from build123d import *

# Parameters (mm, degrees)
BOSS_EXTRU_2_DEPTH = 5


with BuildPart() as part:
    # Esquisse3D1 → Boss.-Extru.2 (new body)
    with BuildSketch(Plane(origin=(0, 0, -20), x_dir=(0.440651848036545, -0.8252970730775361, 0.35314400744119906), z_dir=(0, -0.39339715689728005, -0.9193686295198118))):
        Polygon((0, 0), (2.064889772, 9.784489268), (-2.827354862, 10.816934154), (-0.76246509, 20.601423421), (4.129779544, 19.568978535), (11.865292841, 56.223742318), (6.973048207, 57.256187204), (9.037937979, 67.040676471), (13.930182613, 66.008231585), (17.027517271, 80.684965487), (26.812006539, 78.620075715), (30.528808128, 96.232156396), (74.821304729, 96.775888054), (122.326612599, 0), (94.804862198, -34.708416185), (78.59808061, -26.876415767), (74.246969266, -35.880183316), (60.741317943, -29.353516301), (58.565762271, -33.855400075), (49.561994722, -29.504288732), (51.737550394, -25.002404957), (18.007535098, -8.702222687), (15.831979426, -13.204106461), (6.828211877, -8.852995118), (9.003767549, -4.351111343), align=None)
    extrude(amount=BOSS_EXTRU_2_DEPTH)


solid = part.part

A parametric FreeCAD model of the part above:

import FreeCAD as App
import Part
import Sketcher
from FreeCAD import Vector


def add_polygon(sketch, points):
    """Adds a closed chain of lines whose ends are joined by coincident constraints."""
    first, n = sketch.GeometryCount, len(points)
    for a, b in zip(points, points[1:] + points[:1]):
        sketch.addGeometry(Part.LineSegment(App.Vector(*a, 0), App.Vector(*b, 0)), False)
    for i in range(n):
        sketch.addConstraint(Sketcher.Constraint("Coincident", first + i, 2, first + (i + 1) % n, 1))

doc = App.newDocument("Part")
params = doc.addObject("Spreadsheet::Sheet", "Params")
for row, (alias, value) in enumerate([
    ("sketch1_length", "10 mm"),
    ("sketch1_length2", "5 mm"),
    ("sketch1_length3", "15 mm"),
    ("sketch1_length4", "18 mm"),
    ("pad1_length", "5 mm"),
], start=1):
    params.set(f"A{row}", alias)
    params.set(f"B{row}", "=" + value)
    params.setAlias(f"B{row}", alias)

body = doc.addObject("PartDesign::Body", "Body")

# Sketch on an angled plane
sketch1 = body.newObject("Sketcher::SketchObject", "Sketch")
sketch1.Placement = App.Placement(Vector(0, 0, -20), App.Rotation(Vector(0.440651848, -0.825297073, 0.353144007), Vector(-0.897678088, -0.405121486, 0.173351184), Vector(0, -0.393397157, -0.91936863), "ZXY"))
add_polygon(sketch1, [(2.1, 9.8), (0, 0), (9, -4.4), (6.8, -8.9), (15.8, -13.2), (18, -8.7), (51.7, -25), (49.6, -29.5), (58.6, -33.9), (60.7, -29.4), (74.2, -35.9), (78.6, -26.9), (94.8, -34.7), (122.3, 0), (74.8, 96.8), (30.5, 96.2), (26.8, 78.6), (17, 80.7), (13.9, 66), (9, 67), (7, 57.3), (11.9, 56.2), (4.1, 19.6), (-0.8, 20.6), (-2.8, 10.8)])  # lines 0-24
sketch1.addConstraint([
    Sketcher.Constraint("Coincident", 0, 2, -1, 1),
    Sketcher.Constraint("PointOnObject", 12, 2, -1),
    Sketcher.Constraint("Perpendicular", 1, 2),
    Sketcher.Constraint("Perpendicular", 2, 3),
    Sketcher.Constraint("Perpendicular", 3, 4),
    Sketcher.Constraint("Perpendicular", 4, 5),
    Sketcher.Constraint("Perpendicular", 5, 6),
    Sketcher.Constraint("Perpendicular", 6, 7),
    Sketcher.Constraint("Perpendicular", 7, 8),
    Sketcher.Constraint("Perpendicular", 8, 9),
    Sketcher.Constraint("Perpendicular", 9, 10),
    Sketcher.Constraint("Perpendicular", 10, 11),
    Sketcher.Constraint("Parallel", 0, 15),
    Sketcher.Constraint("Perpendicular", 15, 16),
    Sketcher.Constraint("Perpendicular", 16, 17),
    Sketcher.Constraint("Perpendicular", 17, 18),
    Sketcher.Constraint("Perpendicular", 18, 19),
    Sketcher.Constraint("Perpendicular", 19, 20),
    Sketcher.Constraint("Perpendicular", 20, 21),
    Sketcher.Constraint("Perpendicular", 21, 22),
    Sketcher.Constraint("Perpendicular", 22, 23),
    Sketcher.Constraint("Perpendicular", 23, 24),
    Sketcher.Constraint("Equal", 0, 1),
    Sketcher.Constraint("Equal", 1, 3),
    Sketcher.Constraint("Equal", 2, 4),
    Sketcher.Constraint("Equal", 4, 6),
    Sketcher.Constraint("Equal", 3, 7),
    Sketcher.Constraint("Equal", 6, 8),
    Sketcher.Constraint("Equal", 7, 10),
    Sketcher.Constraint("Equal", 12, 14),
    Sketcher.Constraint("Equal", 11, 15),
    Sketcher.Constraint("Equal", 10, 16),
    Sketcher.Constraint("Equal", 9, 17),
    Sketcher.Constraint("Equal", 8, 18),
    Sketcher.Constraint("Equal", 16, 19),
    Sketcher.Constraint("Equal", 18, 20),
    Sketcher.Constraint("Equal", 5, 21),
    Sketcher.Constraint("Equal", 20, 22),
    Sketcher.Constraint("Equal", 19, 23),
    Sketcher.Constraint("Equal", 22, 24),
    Sketcher.Constraint("Distance", 0, 10.0),
    Sketcher.Constraint("Distance", 2, 5.0),
    Sketcher.Constraint("Distance", 9, 15.0),
    Sketcher.Constraint("Distance", 11, 18.0),
    Sketcher.Constraint("DistanceX", 22, 2, 4, 2, 18.77),
    Sketcher.Constraint("DistanceY", 11, 2, 10, 2, 7.832),
    Sketcher.Constraint("DistanceY", 1, 2, 13, 2, 101.126999),
    Sketcher.Constraint("DistanceY", 7, 2, -1, 1, 33.8554),
    Sketcher.Constraint("DistanceX", 15, 2, 13, 2, 48.009298),
])
sketch1.setExpression("Constraints[65]", "Params.sketch1_length")
sketch1.setExpression("Constraints[66]", "Params.sketch1_length2")
sketch1.setExpression("Constraints[67]", "Params.sketch1_length3")
sketch1.setExpression("Constraints[68]", "Params.sketch1_length4")
pad1 = body.newObject("PartDesign::Pad", "Pad")
pad1.Profile = sketch1
pad1.setExpression("Length", "Params.pad1_length")

doc.recompute()
